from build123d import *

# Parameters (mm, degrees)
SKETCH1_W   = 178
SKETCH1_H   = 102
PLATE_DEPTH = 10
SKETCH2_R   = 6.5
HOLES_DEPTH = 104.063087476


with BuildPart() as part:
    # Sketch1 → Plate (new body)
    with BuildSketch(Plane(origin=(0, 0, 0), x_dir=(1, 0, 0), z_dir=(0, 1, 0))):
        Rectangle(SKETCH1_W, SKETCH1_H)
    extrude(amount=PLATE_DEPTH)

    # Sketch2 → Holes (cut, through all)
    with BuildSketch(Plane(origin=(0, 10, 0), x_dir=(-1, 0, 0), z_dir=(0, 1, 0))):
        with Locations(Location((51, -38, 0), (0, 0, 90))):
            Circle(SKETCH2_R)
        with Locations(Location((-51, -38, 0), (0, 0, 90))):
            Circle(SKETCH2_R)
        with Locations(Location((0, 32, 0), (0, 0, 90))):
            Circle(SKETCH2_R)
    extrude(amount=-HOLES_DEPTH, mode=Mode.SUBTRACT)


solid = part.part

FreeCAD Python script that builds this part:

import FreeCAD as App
import Part
import Sketcher
from FreeCAD import Vector

doc = App.newDocument("Part")
body = doc.addObject("PartDesign::Body", "Body")

sketch1 = body.newObject("Sketcher::SketchObject", "Sketch")
sketch1.AttachmentSupport = (doc.getObject("XZ_Plane"), [""])
sketch1.MapMode = "FlatFace"
sketch1.addGeometry([
    Part.LineSegment(Vector(-89, -51, 0), Vector(-89, 51, 0)),
    Part.LineSegment(Vector(-89, 51, 0), Vector(89, 51, 0)),
    Part.LineSegment(Vector(89, 51, 0), Vector(89, -51, 0)),
    Part.LineSegment(Vector(89, -51, 0), Vector(-89, -51, 0)),
], False)
sketch1.addConstraint([
    Sketcher.Constraint("Coincident", 0, 2, 1, 1),
    Sketcher.Constraint("Coincident", 1, 2, 2, 1),
    Sketcher.Constraint("Coincident", 2, 2, 3, 1),
    Sketcher.Constraint("Coincident", 3, 2, 0, 1),
    Sketcher.Constraint("Vertical", 0),
    Sketcher.Constraint("Horizontal", 1),
    Sketcher.Constraint("Vertical", 2),
    Sketcher.Constraint("Horizontal", 3),
    Sketcher.Constraint("Symmetric", 0, 2, 2, 2, -1, 1),
    Sketcher.Constraint("DistanceX", 1, 1, 1, 2, 178.0),
    Sketcher.Constraint("DistanceY", 0, 1, 0, 2, 102.0),
])
pad1 = body.newObject("PartDesign::Pad", "Pad")
pad1.Profile = sketch1
pad1.Length = 10
pad1.Reversed = True

sketch2 = body.newObject("Sketcher::SketchObject", "Sketch001")
sketch2.AttachmentSupport = (doc.getObject("XZ_Plane"), [""])
sketch2.MapMode = "FlatFace"
sketch2.AttachmentOffset = App.Placement(Vector(0, 0, -10), App.Rotation())
sketch2.addGeometry([
    Part.Circle(Vector(-51, -38, 0), Vector(0, 0, 1), 6),
    Part.Circle(Vector(51, -38, 0), Vector(0, 0, 1), 6),
    Part.Circle(Vector(0, 32, 0), Vector(0, 0, 1), 6),
], False)
sketch2.addConstraint([
    Sketcher.Constraint("Equal", 0, 1),
    Sketcher.Constraint("Equal", 1, 2),
    Sketcher.Constraint("Symmetric", 0, 3, 1, 3, -2),
    Sketcher.Constraint("PointOnObject", 2, 3, -2),
    Sketcher.Constraint("Diameter", 0, 13.0),
    Sketcher.Constraint("DistanceX", 0, 3, -1, 1, 51.0),
    Sketcher.Constraint("DistanceY", 0, 3, -1, 1, 38.0),
    Sketcher.Constraint("DistanceY", -1, 1, 2, 3, 32.0),
])
pocket1 = body.newObject("PartDesign::Pocket", "Pocket")
pocket1.Profile = sketch2
pocket1.Type = "ThroughAll"
pocket1.Reversed = True

doc.recompute()
